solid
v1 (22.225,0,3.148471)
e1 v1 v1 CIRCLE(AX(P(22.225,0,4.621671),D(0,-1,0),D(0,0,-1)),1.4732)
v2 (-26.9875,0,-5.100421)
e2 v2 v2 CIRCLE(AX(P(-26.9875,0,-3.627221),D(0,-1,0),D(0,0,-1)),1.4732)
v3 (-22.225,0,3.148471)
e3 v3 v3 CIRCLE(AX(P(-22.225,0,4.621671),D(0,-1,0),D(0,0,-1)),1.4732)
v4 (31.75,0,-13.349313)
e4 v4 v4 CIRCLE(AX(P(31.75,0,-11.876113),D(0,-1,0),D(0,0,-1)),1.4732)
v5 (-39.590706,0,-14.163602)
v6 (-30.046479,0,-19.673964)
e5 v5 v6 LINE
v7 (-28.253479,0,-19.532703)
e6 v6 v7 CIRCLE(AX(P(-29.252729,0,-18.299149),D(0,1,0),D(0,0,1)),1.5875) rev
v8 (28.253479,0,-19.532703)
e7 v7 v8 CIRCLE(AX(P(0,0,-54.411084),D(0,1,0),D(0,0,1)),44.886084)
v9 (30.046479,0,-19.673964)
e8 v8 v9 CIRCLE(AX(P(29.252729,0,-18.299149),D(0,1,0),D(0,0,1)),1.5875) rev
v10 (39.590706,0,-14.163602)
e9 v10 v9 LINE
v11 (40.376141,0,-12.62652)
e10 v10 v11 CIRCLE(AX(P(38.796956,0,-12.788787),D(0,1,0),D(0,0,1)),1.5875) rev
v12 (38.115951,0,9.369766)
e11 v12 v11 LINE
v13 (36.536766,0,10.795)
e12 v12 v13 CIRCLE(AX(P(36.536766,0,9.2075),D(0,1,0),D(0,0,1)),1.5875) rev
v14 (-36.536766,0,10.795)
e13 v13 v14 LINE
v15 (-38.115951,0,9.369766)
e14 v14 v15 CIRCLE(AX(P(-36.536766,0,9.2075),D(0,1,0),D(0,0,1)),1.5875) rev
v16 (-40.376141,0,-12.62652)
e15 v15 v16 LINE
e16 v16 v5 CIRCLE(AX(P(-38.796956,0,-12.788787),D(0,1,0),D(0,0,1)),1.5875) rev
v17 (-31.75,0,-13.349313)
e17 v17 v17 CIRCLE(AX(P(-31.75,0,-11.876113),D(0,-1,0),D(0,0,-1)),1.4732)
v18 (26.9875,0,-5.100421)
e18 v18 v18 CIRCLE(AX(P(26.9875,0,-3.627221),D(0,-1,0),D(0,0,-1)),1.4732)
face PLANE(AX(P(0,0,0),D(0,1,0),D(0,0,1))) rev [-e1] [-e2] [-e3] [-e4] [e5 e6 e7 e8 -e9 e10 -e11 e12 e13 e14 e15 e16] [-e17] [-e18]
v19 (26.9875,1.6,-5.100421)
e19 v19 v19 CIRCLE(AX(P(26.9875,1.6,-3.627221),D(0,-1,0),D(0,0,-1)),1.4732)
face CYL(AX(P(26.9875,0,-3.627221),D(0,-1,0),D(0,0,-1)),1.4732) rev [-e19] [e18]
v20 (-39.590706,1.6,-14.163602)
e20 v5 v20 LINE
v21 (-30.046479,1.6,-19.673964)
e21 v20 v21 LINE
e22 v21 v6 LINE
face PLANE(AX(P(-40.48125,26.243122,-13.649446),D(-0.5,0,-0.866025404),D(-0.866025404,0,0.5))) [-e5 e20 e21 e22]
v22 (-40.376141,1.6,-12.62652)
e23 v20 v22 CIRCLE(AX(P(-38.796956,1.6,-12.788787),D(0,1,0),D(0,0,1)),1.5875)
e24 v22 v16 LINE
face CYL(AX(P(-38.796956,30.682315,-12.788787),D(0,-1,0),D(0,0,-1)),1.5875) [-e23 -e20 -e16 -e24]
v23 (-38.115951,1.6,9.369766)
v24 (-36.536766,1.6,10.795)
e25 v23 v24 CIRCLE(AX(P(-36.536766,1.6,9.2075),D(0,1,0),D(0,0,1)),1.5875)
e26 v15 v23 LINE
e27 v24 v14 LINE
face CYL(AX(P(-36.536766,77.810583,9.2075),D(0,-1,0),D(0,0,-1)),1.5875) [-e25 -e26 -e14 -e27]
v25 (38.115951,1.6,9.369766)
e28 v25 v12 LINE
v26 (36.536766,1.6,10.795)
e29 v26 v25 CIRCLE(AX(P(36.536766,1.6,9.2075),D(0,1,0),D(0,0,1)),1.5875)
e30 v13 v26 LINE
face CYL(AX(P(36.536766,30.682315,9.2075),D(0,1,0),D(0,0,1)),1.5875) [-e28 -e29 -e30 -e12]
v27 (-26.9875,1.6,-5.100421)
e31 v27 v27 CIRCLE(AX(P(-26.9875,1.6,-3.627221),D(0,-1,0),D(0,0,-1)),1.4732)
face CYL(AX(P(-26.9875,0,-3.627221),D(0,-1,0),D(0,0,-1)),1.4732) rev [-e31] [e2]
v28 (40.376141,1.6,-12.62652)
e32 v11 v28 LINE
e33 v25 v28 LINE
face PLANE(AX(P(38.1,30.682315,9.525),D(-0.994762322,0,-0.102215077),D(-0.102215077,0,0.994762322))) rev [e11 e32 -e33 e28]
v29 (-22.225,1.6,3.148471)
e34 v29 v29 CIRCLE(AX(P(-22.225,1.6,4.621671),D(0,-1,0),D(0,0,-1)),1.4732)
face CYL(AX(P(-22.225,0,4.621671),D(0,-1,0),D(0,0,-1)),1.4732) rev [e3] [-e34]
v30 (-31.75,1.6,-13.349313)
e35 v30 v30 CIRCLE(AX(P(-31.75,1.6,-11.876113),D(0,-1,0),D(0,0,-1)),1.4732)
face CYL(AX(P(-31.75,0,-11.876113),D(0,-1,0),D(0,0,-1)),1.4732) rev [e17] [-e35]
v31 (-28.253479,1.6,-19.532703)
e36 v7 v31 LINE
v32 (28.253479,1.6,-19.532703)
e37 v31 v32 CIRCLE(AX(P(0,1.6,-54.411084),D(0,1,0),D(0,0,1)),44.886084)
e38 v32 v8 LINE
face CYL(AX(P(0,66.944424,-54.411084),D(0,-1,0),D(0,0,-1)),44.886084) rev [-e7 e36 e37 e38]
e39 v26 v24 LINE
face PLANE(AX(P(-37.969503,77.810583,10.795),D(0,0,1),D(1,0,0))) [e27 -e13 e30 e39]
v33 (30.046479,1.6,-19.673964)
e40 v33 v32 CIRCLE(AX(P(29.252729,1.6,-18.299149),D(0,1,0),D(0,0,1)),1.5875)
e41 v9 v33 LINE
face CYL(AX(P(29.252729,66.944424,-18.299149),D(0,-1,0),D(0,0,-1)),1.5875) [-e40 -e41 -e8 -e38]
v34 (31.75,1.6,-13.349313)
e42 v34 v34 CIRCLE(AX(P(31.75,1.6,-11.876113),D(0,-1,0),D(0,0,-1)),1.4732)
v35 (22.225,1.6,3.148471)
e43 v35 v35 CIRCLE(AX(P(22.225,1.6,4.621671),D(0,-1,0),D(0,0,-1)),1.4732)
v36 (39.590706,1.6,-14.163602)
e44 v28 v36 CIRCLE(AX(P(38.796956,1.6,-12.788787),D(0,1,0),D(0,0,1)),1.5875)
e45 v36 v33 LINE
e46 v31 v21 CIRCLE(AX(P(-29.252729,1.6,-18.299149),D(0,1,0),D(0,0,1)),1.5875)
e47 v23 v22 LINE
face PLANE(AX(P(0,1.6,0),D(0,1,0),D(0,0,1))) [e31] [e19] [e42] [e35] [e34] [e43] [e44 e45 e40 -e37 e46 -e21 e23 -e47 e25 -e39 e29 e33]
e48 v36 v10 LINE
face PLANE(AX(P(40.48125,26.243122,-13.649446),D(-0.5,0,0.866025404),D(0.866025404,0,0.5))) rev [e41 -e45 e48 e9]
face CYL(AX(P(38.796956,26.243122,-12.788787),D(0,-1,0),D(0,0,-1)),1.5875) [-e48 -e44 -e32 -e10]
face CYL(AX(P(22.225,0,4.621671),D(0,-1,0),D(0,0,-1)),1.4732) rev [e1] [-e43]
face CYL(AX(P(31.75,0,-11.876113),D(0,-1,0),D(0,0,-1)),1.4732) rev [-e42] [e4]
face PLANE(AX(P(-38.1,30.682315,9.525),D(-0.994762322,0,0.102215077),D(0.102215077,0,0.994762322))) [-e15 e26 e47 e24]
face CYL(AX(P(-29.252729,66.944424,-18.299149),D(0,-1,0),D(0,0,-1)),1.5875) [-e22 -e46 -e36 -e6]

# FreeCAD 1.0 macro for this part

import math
import FreeCAD as App
import Part
import Sketcher
Q = App.Units.Quantity


def edges_at(feature, points):
    """Names of the edges that pass closest to the given points."""
    edges = feature.Shape.Edges
    near = lambda p: min(range(len(edges)), key=lambda i: edges[i].distToShape(Part.Vertex(*p))[0])
    return sorted({f"Edge{near(p) + 1}" for p in points})

doc = App.newDocument("Part")
params = doc.addObject("Spreadsheet::Sheet", "Params")
for row, (alias, value) in enumerate([
    ("sketch1_width", "3 in"),
    ("sketch1_height", "0.75 in"),
    ("pad1_length", "1.6 mm"),
    ("pad2_length", "1.6 mm"),
    ("pad3_length", "1.6 mm"),
    ("pad4_length", "1.6 mm"),
    ("sketch5_width", "3 in"),
    ("pad5_length", "1.6 mm"),
    ("fillet_radius", "0.0625 in"),
    ("sketch6_diameter", "0.116 in"),
    ("hole_diameter", "0.116 in"),
], start=1):
    params.set(f"A{row}", alias)
    params.set(f"B{row}", "=" + value)
    params.setAlias(f"B{row}", alias)

body = doc.addObject("PartDesign::Body", "Body")

# Sketch on XZ plane
sketch1 = body.newObject("Sketcher::SketchObject", "Sketch")
sketch1.AttachmentSupport = (doc.getObject("XZ_Plane"), [""])
sketch1.MapMode = "FlatFace"
sketch1.addGeometry([
    Part.LineSegment(App.Vector(-38, -10, 0), App.Vector(-38, 10, 0)),
    Part.LineSegment(App.Vector(-38, 10, 0), App.Vector(38, 10, 0)),
    Part.LineSegment(App.Vector(38, 10, 0), App.Vector(38, -10, 0)),
    Part.LineSegment(App.Vector(38, -10, 0), App.Vector(-38, -10, 0)),
], False)
sketch1.addConstraint([
    Sketcher.Constraint("Coincident", 0, 2, 1, 1),
    Sketcher.Constraint("Coincident", 1, 2, 2, 1),
    Sketcher.Constraint("Coincident", 2, 2, 3, 1),
    Sketcher.Constraint("Coincident", 3, 2, 0, 1),
    Sketcher.Constraint("Vertical", 0),
    Sketcher.Constraint("Horizontal", 1),
    Sketcher.Constraint("Vertical", 2),
    Sketcher.Constraint("Horizontal", 3),
    Sketcher.Constraint("Symmetric", 0, 2, 2, 2, -1, 1),
    Sketcher.Constraint("DistanceX", 1, 1, 1, 2, Q("3 in")),
    Sketcher.Constraint("DistanceY", 0, 1, 0, 2, Q("0.75 in")),
])
sketch1.setExpression("Constraints[9]", "Params.sketch1_width")
sketch1.setExpression("Constraints[10]", "Params.sketch1_height")
pad1 = body.newObject("PartDesign::Pad", "Pad")
pad1.Profile = sketch1
pad1.setExpression("Length", "Params.pad1_length")
pad1.Reversed = True

# Sketch on XZ plane
sketch2 = body.newObject("Sketcher::SketchObject", "Sketch001")
sketch2.AttachmentSupport = (doc.getObject("XZ_Plane"), [""])
sketch2.MapMode = "FlatFace"
sketch2.addGeometry([
    Part.LineSegment(App.Vector(-40, -14, 0), App.Vector(-29, -20, 0)),
    Part.LineSegment(App.Vector(-29, -20, 0), App.Vector(-23, -10, 0)),
    Part.LineSegment(App.Vector(-23, -10, 0), App.Vector(-34, -3, 0)),
    Part.LineSegment(App.Vector(-34, -3, 0), App.Vector(-40, -14, 0)),
], False)
sketch2.addConstraint([
    Sketcher.Constraint("Coincident", 0, 2, 1, 1),
    Sketcher.Constraint("Coincident", 1, 2, 2, 1),
    Sketcher.Constraint("Coincident", 2, 2, 3, 1),
    Sketcher.Constraint("Coincident", 3, 2, 0, 1),
    Sketcher.Constraint("Perpendicular", 0, 1),
    Sketcher.Constraint("Perpendicular", 1, 2),
    Sketcher.Constraint("Perpendicular", 2, 3),
    Sketcher.Constraint("Angle", 0, Q("-30 deg")),
    Sketcher.Constraint("DistanceY", 1, 2, -1, 1, Q("0.375 in")),
    Sketcher.Constraint("DistanceX", 3, 2, -1, 1, Q("1.59375 in")),
    Sketcher.Constraint("DistanceY", 0, 2, -1, 1, Q("20.226629 mm")),
    Sketcher.Constraint("Distance", 0, Q("13.154366 mm")),
])
pad2 = body.newObject("PartDesign::Pad", "Pad001")
pad2.Profile = sketch2
pad2.setExpression("Length", "Params.pad2_length")
pad2.Reversed = True

# Sketch on XZ plane
sketch3 = body.newObject("Sketcher::SketchObject", "Sketch002")
sketch3.AttachmentSupport = (doc.getObject("XZ_Plane"), [""])
sketch3.MapMode = "FlatFace"
sketch3.addGeometry([
    Part.LineSegment(App.Vector(-38, 10, 0), App.Vector(-40, -14, 0)),
    Part.LineSegment(App.Vector(-40, -14, 0), App.Vector(-23, -10, 0)),
    Part.LineSegment(App.Vector(-23, -10, 0), App.Vector(-38, 10, 0)),
], False)
sketch3.addConstraint([
    Sketcher.Constraint("Coincident", 0, 2, 1, 1),
    Sketcher.Constraint("Coincident", 1, 2, 2, 1),
    Sketcher.Constraint("Coincident", 2, 2, 0, 1),
    Sketcher.Constraint("DistanceX", 2, 2, -1, 1, Q("1.5 in")),
    Sketcher.Constraint("DistanceY", 1, 2, 2, 2, Q("0.75 in")),
    Sketcher.Constraint("DistanceX", 0, 2, -1, 1, Q("1.59375 in")),
    Sketcher.Constraint("DistanceY", 1, 2, -1, 1, Q("0.375 in")),
    Sketcher.Constraint("Distance", 1, Q("18.04819 mm")),
    Sketcher.Constraint("Distance", 0, Q("23.296465 mm")),
])
pad3 = body.newObject("PartDesign::Pad", "Pad002")
pad3.Profile = sketch3
pad3.setExpression("Length", "Params.pad3_length")
pad3.Reversed = True
doc.recompute()

mirrored = body.newObject("PartDesign::Mirrored", "Mirrored")
mirrored.Originals = [pad2, pad3]
mirrored.MirrorPlane = (doc.getObject("YZ_Plane"), [""])
body.Tip = mirrored

# Sketch on XZ plane
sketch4 = body.newObject("Sketcher::SketchObject", "Sketch003")
sketch4.AttachmentSupport = (doc.getObject("XZ_Plane"), [""])
sketch4.MapMode = "FlatFace"
sketch4.addGeometry([
    Part.LineSegment(App.Vector(-29, 10, 0), App.Vector(-29, -20, 0)),
    Part.ArcOfCircle(Part.Circle(App.Vector(0, -54, 0), App.Vector(0, 0, 1), 45), math.radians(50), math.radians(130)),
    Part.LineSegment(App.Vector(29, -20, 0), App.Vector(29, 10, 0)),
    Part.LineSegment(App.Vector(29, 10, 0), App.Vector(-29, 10, 0)),
], False)
sketch4.addConstraint([
    Sketcher.Constraint("Coincident", 0, 2, 1, 2),
    Sketcher.Constraint("Coincident", 1, 1, 2, 1),
    Sketcher.Constraint("Coincident", 2, 2, 3, 1),
    Sketcher.Constraint("Coincident", 3, 2, 0, 1),
    Sketcher.Constraint("Vertical", 0),
    Sketcher.Constraint("Vertical", 2),
    Sketcher.Constraint("Horizontal", 3),
    Sketcher.Constraint("Symmetric", 0, 2, 1, 1, -2),
    Sketcher.Constraint("DistanceY", -1, 1, 2, 2, Q("0.375 in")),
    Sketcher.Constraint("Radius", 1, Q("44.886084 mm")),
    Sketcher.Constraint("DistanceX", 3, 2, 3, 1, Q("58.178469 mm")),
    Sketcher.Constraint("DistanceY", 0, 2, 0, 1, Q("29.751629 mm")),
])
pad4 = body.newObject("PartDesign::Pad", "Pad003")
pad4.Profile = sketch4
pad4.setExpression("Length", "Params.pad4_length")
pad4.Reversed = True

# Sketch on XZ plane
sketch5 = body.newObject("Sketcher::SketchObject", "Sketch004")
sketch5.AttachmentSupport = (doc.getObject("XZ_Plane"), [""])
sketch5.MapMode = "FlatFace"
sketch5.addGeometry([
    Part.LineSegment(App.Vector(-38, 10.8, 0), App.Vector(-38.1, 9.5, 0)),
    Part.LineSegment(App.Vector(-38.1, 9.5, 0), App.Vector(38.1, 9.5, 0)),
    Part.LineSegment(App.Vector(38.1, 9.5, 0), App.Vector(38, 10.8, 0)),
    Part.LineSegment(App.Vector(38, 10.8, 0), App.Vector(-38, 10.8, 0)),
], False)
sketch5.addConstraint([
    Sketcher.Constraint("Coincident", 0, 2, 1, 1),
    Sketcher.Constraint("Coincident", 1, 2, 2, 1),
    Sketcher.Constraint("Coincident", 2, 2, 3, 1),
    Sketcher.Constraint("Coincident", 3, 2, 0, 1),
    Sketcher.Constraint("Horizontal", 1),
    Sketcher.Constraint("Horizontal", 3),
    Sketcher.Constraint("Equal", 0, 2),
    Sketcher.Constraint("DistanceX", 1, 1, 1, 2, Q("3 in")),
    Sketcher.Constraint("DistanceX", 0, 2, -1, 1, Q("1.5 in")),
    Sketcher.Constraint("DistanceY", 1, 2, 2, 2, Q("0.05 in")),
    Sketcher.Constraint("DistanceY", -1, 1, 0, 2, Q("0.375 in")),
    Sketcher.Constraint("DistanceX", 3, 2, 3, 1, Q("75.939007 mm")),
])
sketch5.setExpression("Constraints[7]", "Params.sketch5_width")
pad5 = body.newObject("PartDesign::Pad", "Pad004")
pad5.Profile = sketch5
pad5.setExpression("Length", "Params.pad5_length")
pad5.Reversed = True
doc.recompute()

fillet = body.newObject("PartDesign::Fillet", "Fillet")
fillet.Base = (pad5, edges_at(pad5, [
    (-40.481, 0.8, -13.649),
    (-29.089, 0.8, -20.227),
    (40.481, 0.8, -13.649),
    (29.089, 0.8, -20.227),
    (37.97, 0.8, 10.795),
    (-37.97, 0.8, 10.795),
]))
fillet.setExpression("Radius", "Params.fillet_radius")

# Sketch on XZ plane
sketch6 = body.newObject("Sketcher::SketchObject", "Sketch005")
sketch6.AttachmentSupport = (doc.getObject("XZ_Plane"), [""])
sketch6.MapMode = "FlatFace"
sketch6.addGeometry([
    Part.Circle(App.Vector(-22.2, 4.6, 0), App.Vector(0, 0, 1), 1.5),
    Part.Circle(App.Vector(-27, -3.6, 0), App.Vector(0, 0, 1), 1.5),
    Part.Circle(App.Vector(-31.8, -11.9, 0), App.Vector(0, 0, 1), 1.5),
], False)
sketch6.addConstraint([
    Sketcher.Constraint("Equal", 0, 1),
    Sketcher.Constraint("Equal", 1, 2),
    Sketcher.Constraint("Diameter", 0, Q("0.116 in")),
    Sketcher.Constraint("DistanceX", 2, 3, -1, 1, Q("1.25 in")),
    Sketcher.Constraint("DistanceX", 0, 3, -1, 1, Q("0.875 in")),
    Sketcher.Constraint("DistanceX", 1, 3, -1, 1, Q("1.0625 in")),
    Sketcher.Constraint("DistanceY", -1, 1, 0, 3, Q("4.621671 mm")),
    Sketcher.Constraint("DistanceY", 1, 3, -1, 1, Q("3.627221 mm")),
    Sketcher.Constraint("DistanceY", 2, 3, 1, 3, Q("8.248892 mm")),
])
sketch6.setExpression("Constraints[2]", "Params.sketch6_diameter")
doc.recompute()
hole = body.newObject("PartDesign::Hole", "Hole")
hole.Profile = sketch6
hole.ThreadType = "None"
hole.setExpression("Diameter", "Params.hole_diameter")
hole.DepthType = "ThroughAll"
doc.recompute()

mirrored2 = body.newObject("PartDesign::Mirrored", "Mirrored001")
mirrored2.Originals = [hole]
mirrored2.MirrorPlane = (doc.getObject("YZ_Plane"), [""])
body.Tip = mirrored2

doc.recompute()
